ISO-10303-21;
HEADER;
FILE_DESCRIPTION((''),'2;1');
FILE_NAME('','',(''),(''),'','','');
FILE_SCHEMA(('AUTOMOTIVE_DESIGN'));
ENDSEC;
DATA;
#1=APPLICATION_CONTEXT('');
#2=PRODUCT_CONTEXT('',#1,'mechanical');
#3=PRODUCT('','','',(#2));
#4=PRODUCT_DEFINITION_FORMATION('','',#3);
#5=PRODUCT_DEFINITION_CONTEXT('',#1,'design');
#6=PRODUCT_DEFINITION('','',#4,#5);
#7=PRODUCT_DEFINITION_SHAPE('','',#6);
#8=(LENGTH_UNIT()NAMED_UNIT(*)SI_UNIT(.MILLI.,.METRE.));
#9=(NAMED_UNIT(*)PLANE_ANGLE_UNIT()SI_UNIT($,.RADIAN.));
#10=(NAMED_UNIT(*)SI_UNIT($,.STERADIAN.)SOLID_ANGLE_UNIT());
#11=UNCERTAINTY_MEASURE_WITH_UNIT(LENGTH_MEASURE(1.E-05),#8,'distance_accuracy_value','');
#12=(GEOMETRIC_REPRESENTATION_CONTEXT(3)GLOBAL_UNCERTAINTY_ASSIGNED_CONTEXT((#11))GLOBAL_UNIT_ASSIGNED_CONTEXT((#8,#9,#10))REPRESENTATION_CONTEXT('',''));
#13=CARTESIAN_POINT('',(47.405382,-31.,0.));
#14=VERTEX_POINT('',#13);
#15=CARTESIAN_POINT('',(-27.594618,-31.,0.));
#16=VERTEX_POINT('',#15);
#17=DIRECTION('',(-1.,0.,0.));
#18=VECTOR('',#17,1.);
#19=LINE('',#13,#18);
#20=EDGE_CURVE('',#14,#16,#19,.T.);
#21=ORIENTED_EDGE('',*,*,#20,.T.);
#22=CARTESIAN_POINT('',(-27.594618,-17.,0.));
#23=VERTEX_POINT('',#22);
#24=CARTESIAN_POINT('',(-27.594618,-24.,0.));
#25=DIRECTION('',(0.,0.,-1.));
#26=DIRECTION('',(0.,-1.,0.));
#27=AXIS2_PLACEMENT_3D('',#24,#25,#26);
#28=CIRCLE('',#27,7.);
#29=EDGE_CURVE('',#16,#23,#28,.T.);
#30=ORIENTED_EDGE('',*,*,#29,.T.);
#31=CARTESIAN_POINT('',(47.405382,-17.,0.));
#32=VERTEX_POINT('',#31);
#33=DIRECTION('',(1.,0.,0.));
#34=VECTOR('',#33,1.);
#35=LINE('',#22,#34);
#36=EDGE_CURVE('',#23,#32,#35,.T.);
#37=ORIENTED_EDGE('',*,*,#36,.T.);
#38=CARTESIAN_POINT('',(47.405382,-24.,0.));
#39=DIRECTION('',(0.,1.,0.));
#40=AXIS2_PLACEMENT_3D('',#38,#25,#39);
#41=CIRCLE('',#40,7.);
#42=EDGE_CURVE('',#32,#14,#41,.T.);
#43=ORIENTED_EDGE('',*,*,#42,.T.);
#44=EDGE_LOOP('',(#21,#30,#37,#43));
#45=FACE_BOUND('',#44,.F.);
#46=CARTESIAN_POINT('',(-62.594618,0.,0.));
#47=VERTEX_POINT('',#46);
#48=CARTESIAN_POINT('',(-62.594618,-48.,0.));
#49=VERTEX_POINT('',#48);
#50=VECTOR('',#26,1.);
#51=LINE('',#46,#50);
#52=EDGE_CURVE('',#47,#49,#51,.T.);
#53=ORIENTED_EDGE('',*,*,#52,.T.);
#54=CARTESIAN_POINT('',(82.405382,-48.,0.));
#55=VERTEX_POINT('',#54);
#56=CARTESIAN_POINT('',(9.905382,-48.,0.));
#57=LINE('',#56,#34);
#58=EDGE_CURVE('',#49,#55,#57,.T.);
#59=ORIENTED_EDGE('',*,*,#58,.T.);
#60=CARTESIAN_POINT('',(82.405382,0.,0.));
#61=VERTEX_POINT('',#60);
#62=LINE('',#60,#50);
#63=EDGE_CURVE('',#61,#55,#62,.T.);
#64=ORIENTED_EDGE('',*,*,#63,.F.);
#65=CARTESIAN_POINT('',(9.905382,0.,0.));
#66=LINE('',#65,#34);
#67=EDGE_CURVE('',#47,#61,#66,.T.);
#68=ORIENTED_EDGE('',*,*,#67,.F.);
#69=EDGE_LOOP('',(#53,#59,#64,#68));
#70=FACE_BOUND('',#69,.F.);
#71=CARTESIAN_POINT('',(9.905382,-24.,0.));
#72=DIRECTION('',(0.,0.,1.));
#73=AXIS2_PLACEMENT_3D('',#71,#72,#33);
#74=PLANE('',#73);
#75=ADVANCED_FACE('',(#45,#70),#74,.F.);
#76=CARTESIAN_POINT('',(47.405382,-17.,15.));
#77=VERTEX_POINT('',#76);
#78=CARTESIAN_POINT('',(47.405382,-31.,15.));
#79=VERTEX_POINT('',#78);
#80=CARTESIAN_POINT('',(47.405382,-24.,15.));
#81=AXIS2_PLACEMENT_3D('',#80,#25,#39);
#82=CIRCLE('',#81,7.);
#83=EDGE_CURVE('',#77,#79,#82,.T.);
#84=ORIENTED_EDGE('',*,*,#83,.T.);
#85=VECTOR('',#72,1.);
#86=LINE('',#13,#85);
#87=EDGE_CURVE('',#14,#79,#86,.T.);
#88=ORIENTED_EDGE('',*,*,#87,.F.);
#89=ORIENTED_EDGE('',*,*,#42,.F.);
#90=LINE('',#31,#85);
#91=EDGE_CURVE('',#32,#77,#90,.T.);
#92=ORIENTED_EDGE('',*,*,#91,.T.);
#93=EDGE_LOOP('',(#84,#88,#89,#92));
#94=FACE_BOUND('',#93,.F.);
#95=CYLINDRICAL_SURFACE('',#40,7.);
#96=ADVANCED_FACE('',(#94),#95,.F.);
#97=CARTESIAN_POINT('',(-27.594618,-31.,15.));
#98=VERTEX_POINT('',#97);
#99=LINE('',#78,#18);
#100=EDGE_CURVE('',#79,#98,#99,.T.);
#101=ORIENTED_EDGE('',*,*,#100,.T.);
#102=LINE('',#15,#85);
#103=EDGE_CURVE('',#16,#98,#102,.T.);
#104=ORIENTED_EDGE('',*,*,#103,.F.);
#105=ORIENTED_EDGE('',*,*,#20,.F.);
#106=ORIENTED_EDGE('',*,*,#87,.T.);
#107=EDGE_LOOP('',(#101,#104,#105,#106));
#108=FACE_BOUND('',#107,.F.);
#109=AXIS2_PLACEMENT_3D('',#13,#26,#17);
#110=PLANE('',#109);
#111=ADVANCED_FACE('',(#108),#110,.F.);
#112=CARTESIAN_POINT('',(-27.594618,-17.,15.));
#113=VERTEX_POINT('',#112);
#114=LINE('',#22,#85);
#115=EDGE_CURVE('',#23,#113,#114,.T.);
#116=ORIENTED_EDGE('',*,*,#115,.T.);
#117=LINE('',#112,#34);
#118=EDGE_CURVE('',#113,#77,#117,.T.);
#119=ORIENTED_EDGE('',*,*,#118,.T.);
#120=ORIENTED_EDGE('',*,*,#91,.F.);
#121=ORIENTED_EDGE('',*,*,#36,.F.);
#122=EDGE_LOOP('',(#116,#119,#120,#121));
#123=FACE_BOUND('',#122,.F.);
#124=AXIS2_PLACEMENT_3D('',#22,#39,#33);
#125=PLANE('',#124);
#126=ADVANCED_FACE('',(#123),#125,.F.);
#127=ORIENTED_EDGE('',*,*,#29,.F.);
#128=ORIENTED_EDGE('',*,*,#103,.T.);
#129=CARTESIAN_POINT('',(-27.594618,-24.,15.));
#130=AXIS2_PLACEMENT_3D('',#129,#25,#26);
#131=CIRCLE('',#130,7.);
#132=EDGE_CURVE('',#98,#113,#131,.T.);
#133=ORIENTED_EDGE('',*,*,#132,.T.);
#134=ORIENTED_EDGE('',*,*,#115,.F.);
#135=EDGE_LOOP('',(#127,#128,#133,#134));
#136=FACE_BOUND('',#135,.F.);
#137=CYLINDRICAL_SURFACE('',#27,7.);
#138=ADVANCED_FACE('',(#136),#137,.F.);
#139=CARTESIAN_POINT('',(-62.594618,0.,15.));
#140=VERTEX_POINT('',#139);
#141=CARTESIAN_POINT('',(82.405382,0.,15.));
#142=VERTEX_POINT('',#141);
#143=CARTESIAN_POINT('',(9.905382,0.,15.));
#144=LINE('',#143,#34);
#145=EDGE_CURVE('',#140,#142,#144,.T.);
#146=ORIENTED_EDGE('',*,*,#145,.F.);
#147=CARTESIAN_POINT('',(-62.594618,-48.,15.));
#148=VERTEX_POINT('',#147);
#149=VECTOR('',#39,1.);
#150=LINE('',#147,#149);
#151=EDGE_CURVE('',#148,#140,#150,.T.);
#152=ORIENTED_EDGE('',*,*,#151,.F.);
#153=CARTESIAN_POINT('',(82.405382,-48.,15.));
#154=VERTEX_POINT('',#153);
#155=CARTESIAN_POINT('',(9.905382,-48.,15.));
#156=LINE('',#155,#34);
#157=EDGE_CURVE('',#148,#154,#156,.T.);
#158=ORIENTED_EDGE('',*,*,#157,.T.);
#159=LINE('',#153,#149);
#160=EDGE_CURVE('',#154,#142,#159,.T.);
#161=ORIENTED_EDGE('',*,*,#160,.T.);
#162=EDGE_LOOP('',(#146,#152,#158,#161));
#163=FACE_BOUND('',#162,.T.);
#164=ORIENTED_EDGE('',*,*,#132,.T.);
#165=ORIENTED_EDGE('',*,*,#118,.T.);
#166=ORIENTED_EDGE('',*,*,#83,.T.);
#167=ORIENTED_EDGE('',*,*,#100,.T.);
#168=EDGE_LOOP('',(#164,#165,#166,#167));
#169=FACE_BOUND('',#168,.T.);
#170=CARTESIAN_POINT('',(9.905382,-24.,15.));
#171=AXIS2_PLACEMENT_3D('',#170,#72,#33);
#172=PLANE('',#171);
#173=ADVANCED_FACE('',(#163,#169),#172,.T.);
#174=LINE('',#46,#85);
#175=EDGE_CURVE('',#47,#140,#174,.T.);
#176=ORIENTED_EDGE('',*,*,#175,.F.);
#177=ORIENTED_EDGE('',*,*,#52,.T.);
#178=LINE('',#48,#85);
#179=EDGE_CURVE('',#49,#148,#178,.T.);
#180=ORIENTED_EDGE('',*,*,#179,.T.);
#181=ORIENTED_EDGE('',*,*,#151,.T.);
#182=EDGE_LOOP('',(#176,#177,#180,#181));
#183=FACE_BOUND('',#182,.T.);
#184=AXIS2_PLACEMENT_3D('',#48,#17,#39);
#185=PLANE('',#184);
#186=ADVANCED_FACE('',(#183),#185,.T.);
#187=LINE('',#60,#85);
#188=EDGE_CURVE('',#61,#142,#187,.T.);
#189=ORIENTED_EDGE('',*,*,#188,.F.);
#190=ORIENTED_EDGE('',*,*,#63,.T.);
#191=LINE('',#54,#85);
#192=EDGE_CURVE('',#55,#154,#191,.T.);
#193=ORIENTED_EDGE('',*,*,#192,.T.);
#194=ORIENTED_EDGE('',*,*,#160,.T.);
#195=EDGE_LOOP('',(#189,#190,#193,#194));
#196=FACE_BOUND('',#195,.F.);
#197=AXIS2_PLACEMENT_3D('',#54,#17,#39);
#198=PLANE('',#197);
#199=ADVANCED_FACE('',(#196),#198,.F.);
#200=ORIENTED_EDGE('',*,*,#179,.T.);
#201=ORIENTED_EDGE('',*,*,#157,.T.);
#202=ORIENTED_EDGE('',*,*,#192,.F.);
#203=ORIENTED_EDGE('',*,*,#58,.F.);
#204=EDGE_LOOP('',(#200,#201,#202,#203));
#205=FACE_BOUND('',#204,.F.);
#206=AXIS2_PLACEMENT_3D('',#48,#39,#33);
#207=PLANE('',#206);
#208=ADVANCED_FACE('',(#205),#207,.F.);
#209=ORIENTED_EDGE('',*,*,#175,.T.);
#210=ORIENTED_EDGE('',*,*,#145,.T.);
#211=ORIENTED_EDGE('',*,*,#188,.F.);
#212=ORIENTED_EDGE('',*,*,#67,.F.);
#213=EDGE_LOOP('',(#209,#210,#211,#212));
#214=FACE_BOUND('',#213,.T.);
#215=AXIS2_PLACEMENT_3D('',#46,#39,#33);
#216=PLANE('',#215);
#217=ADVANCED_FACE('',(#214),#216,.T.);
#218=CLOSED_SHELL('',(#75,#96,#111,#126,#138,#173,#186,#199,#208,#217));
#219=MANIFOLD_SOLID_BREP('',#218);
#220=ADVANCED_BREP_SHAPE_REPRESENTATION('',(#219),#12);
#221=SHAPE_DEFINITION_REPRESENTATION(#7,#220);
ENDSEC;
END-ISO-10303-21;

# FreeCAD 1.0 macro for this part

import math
import FreeCAD as App
import Part
import Sketcher

V = App.Vector
Q = App.Units.Quantity


def add_polygon(sketch, points):
    """Adds a closed chain of lines whose ends are joined by coincident constraints."""
    first, n = sketch.GeometryCount, len(points)
    for a, b in zip(points, points[1:] + points[:1]):
        sketch.addGeometry(Part.LineSegment(App.Vector(*a, 0), App.Vector(*b, 0)), False)
    for i in range(n):
        sketch.addConstraint(Sketcher.Constraint("Coincident", first + i, 2, first + (i + 1) % n, 1))

doc = App.newDocument("Part")
body = doc.addObject("PartDesign::Body", "Body")

# Sketch on XY plane
sketch1 = body.newObject("Sketcher::SketchObject", "Sketch")
sketch1.AttachmentSupport = (doc.getObject("XY_Plane"), [""])
sketch1.MapMode = "FlatFace"
add_polygon(sketch1, [(-63, 0), (-63, -48), (82, -48), (82, 0)])  # lines 0-3
sketch1.addGeometry(Part.LineSegment(V(47, -31, 0), V(-28, -31, 0)), False)  # 4
sketch1.addGeometry(Part.ArcOfCircle(Part.Circle(V(-28, -24, 0), V(0, 0, 1), 7), math.radians(90), math.radians(270)), False)  # 5
sketch1.addGeometry(Part.LineSegment(V(-28, -17, 0), V(47, -17, 0)), False)  # 6
sketch1.addGeometry(Part.ArcOfCircle(Part.Circle(V(47, -24, 0), V(0, 0, 1), 7), math.radians(-90), math.radians(90)), False)  # 7
sketch1.addConstraint([
    Sketcher.Constraint("Tangent", 4, 2, 5, 2),
    Sketcher.Constraint("Tangent", 5, 1, 6, 1),
    Sketcher.Constraint("Tangent", 6, 2, 7, 2),
    Sketcher.Constraint("Tangent", 7, 1, 4, 1),
    Sketcher.Constraint("Vertical", 0),
    Sketcher.Constraint("Horizontal", 1),
    Sketcher.Constraint("Vertical", 2),
    Sketcher.Constraint("Horizontal", 3),
    Sketcher.Constraint("Horizontal", 4),
    Sketcher.Constraint("Horizontal", 6),
    Sketcher.Constraint("PointOnObject", 2, 2, -1),
    Sketcher.Constraint("Radius", 5, Q("7 mm")),
    Sketcher.Constraint("DistanceX", 1, 1, 1, 2, Q("145 mm")),
    Sketcher.Constraint("DistanceX", 4, 2, 4, 1, Q("75 mm")),
    Sketcher.Constraint("DistanceY", 0, 2, 0, 1, Q("48 mm")),
    Sketcher.Constraint("DistanceY", 5, 3, -1, 1, Q("24 mm")),
    Sketcher.Constraint("DistanceX", 0, 2, 5, 3, Q("35 mm")),
    Sketcher.Constraint("DistanceX", 5, 3, -1, 1, Q("27.594618 mm")),
])
pad1 = body.newObject("PartDesign::Pad", "Pad")
pad1.Profile = sketch1
pad1.Length = 15

# Sketch on XY plane
sketch2 = body.newObject("Sketcher::SketchObject", "Sketch001")
sketch2.AttachmentSupport = (doc.getObject("XY_Plane"), [""])
sketch2.MapMode = "FlatFace"
add_polygon(sketch2, [(-63, 0), (-63, -12), (82, -12), (82, 0)])  # lines 0-3
sketch2.addConstraint([
    Sketcher.Constraint("Vertical", 0),
    Sketcher.Constraint("Horizontal", 1),
    Sketcher.Constraint("Vertical", 2),
    Sketcher.Constraint("Horizontal", 3),
    Sketcher.Constraint("PointOnObject", 2, 2, -1),
    Sketcher.Constraint("DistanceX", 1, 1, 1, 2, Q("145 mm")),
    Sketcher.Constraint("DistanceY", 0, 2, 0, 1, Q("12 mm")),
    Sketcher.Constraint("DistanceX", 0, 2, -1, 1, Q("62.594618 mm")),
])
pad2 = body.newObject("PartDesign::Pad", "Pad001")
pad2.Profile = sketch2
pad2.Length = 15

doc.recompute()
